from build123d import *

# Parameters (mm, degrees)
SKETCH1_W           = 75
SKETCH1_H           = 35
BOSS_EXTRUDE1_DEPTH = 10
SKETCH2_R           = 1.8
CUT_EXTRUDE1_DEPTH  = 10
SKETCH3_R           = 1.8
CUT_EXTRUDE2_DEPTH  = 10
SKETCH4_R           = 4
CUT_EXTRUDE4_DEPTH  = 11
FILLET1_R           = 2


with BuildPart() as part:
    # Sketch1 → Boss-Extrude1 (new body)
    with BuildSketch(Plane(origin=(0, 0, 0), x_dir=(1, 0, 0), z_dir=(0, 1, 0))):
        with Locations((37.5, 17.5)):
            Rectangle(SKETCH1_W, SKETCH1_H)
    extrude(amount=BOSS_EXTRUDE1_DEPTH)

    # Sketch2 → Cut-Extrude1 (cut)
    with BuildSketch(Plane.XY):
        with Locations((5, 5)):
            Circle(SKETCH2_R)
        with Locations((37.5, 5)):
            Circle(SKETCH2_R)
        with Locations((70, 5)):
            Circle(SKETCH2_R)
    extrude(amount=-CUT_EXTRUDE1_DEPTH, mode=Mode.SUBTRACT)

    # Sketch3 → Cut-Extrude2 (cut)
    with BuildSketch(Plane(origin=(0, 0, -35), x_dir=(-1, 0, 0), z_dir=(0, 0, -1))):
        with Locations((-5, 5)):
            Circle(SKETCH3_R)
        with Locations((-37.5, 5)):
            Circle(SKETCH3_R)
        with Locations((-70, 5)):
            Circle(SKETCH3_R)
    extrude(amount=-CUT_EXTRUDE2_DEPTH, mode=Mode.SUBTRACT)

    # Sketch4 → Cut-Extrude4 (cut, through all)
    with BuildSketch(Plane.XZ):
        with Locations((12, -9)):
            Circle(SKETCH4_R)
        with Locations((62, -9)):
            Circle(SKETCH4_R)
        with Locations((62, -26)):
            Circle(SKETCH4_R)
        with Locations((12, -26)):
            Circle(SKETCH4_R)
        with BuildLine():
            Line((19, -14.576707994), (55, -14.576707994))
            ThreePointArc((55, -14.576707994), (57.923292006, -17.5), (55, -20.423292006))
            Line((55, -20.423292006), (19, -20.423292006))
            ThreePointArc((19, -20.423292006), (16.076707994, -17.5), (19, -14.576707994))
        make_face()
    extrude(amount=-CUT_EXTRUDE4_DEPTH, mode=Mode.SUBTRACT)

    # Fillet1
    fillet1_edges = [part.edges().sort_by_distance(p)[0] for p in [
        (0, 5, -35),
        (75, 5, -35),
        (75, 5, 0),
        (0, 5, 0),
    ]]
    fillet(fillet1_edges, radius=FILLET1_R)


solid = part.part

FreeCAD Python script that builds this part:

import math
import FreeCAD as App
import Part
import Sketcher
Q = App.Units.Quantity


def edges_at(feature, points):
    """Names of the edges that pass closest to the given points."""
    edges = feature.Shape.Edges
    near = lambda p: min(range(len(edges)), key=lambda i: edges[i].distToShape(Part.Vertex(*p))[0])
    return sorted({f"Edge{near(p) + 1}" for p in points})


def add_polygon(sketch, points):
    """Adds a closed chain of lines whose ends are joined by coincident constraints."""
    first, n = sketch.GeometryCount, len(points)
    for a, b in zip(points, points[1:] + points[:1]):
        sketch.addGeometry(Part.LineSegment(App.Vector(*a, 0), App.Vector(*b, 0)), False)
    for i in range(n):
        sketch.addConstraint(Sketcher.Constraint("Coincident", first + i, 2, first + (i + 1) % n, 1))

doc = App.newDocument("Part")
body = doc.addObject("PartDesign::Body", "Body")

sketch1 = body.newObject("Sketcher::SketchObject", "Sketch")
sketch1.AttachmentSupport = (doc.getObject("XZ_Plane"), [""])
sketch1.MapMode = "FlatFace"
add_polygon(sketch1, [(0, -35), (0, 0), (75, 0), (75, -35)])
sketch1.addConstraint([
    Sketcher.Constraint("Vertical", 0),
    Sketcher.Constraint("Horizontal", 1),
    Sketcher.Constraint("Vertical", 2),
    Sketcher.Constraint("Horizontal", 3),
    Sketcher.Constraint("Coincident", 0, 2, -1, 1),
    Sketcher.Constraint("DistanceX", 1, 1, 1, 2, Q("75 mm")),
    Sketcher.Constraint("DistanceY", 0, 1, 0, 2, Q("35 mm")),
])
pad1 = body.newObject("PartDesign::Pad", "Pad")
pad1.Profile = sketch1
pad1.Length = 10
pad1.Reversed = True

sketch2 = body.newObject("Sketcher::SketchObject", "Sketch001")
sketch2.AttachmentSupport = (doc.getObject("XY_Plane"), [""])
sketch2.MapMode = "FlatFace"
sketch2.addGeometry([
    Part.Circle(App.Vector(5, 5, 0), App.Vector(0, 0, 1), 1.8),
    Part.Circle(App.Vector(37.5, 5, 0), App.Vector(0, 0, 1), 1.8),
    Part.Circle(App.Vector(70, 5, 0), App.Vector(0, 0, 1), 1.8),
], False)
sketch2.addConstraint([
    Sketcher.Constraint("Equal", 0, 1),
    Sketcher.Constraint("Equal", 1, 2),
    Sketcher.Constraint("Horizontal", 0, 3, 1, 3),
    Sketcher.Constraint("Horizontal", 1, 3, 2, 3),
    Sketcher.Constraint("Diameter", 0, Q("3.6 mm")),
    Sketcher.Constraint("DistanceX", -1, 1, 0, 3, Q("5 mm")),
    Sketcher.Constraint("DistanceY", -1, 1, 0, 3, Q("5 mm")),
    Sketcher.Constraint("DistanceX", -1, 1, 2, 3, Q("70 mm")),
    Sketcher.Constraint("DistanceX", -1, 1, 1, 3, Q("37.5 mm")),
])
pocket1 = body.newObject("PartDesign::Pocket", "Pocket")
pocket1.Profile = sketch2
pocket1.Length = 10

sketch3 = body.newObject("Sketcher::SketchObject", "Sketch002")
sketch3.AttachmentSupport = (doc.getObject("XY_Plane"), [""])
sketch3.MapMode = "FlatFace"
sketch3.AttachmentOffset = App.Placement(App.Vector(0, 0, -35), App.Rotation())
sketch3.addGeometry([
    Part.Circle(App.Vector(5, 5, 0), App.Vector(0, 0, 1), 1.8),
    Part.Circle(App.Vector(37.5, 5, 0), App.Vector(0, 0, 1), 1.8),
    Part.Circle(App.Vector(70, 5, 0), App.Vector(0, 0, 1), 1.8),
], False)
sketch3.addConstraint([
    Sketcher.Constraint("Equal", 0, 1),
    Sketcher.Constraint("Equal", 1, 2),
    Sketcher.Constraint("Horizontal", 0, 3, 1, 3),
    Sketcher.Constraint("Horizontal", 1, 3, 2, 3),
    Sketcher.Constraint("Diameter", 0, Q("3.6 mm")),
    Sketcher.Constraint("DistanceX", -1, 1, 0, 3, Q("5 mm")),
    Sketcher.Constraint("DistanceY", -1, 1, 0, 3, Q("5 mm")),
    Sketcher.Constraint("DistanceX", -1, 1, 2, 3, Q("70 mm")),
    Sketcher.Constraint("DistanceX", -1, 1, 1, 3, Q("37.5 mm")),
])
pocket2 = body.newObject("PartDesign::Pocket", "Pocket001")
pocket2.Profile = sketch3
pocket2.Length = 10
pocket2.Reversed = True

sketch4 = body.newObject("Sketcher::SketchObject", "Sketch003")
sketch4.AttachmentSupport = (doc.getObject("XZ_Plane"), [""])
sketch4.MapMode = "FlatFace"
sketch4.addGeometry([
    Part.Circle(App.Vector(12, -9, 0), App.Vector(0, 0, 1), 4),
    Part.Circle(App.Vector(62, -9, 0), App.Vector(0, 0, 1), 4),
    Part.Circle(App.Vector(62, -26, 0), App.Vector(0, 0, 1), 4),
    Part.Circle(App.Vector(12, -26, 0), App.Vector(0, 0, 1), 4),
    Part.LineSegment(App.Vector(55, -14.6, 0), App.Vector(19, -14.6, 0)),
    Part.ArcOfCircle(Part.Circle(App.Vector(19, -17.5, 0), App.Vector(0, 0, 1), 2.9), math.radians(90), math.radians(270)),
    Part.LineSegment(App.Vector(19, -20.4, 0), App.Vector(55, -20.4, 0)),
    Part.ArcOfCircle(Part.Circle(App.Vector(55, -17.5, 0), App.Vector(0, 0, 1), 2.9), math.radians(-90), math.radians(90)),
], False)
sketch4.addConstraint([
    Sketcher.Constraint("Tangent", 4, 2, 5, 1),
    Sketcher.Constraint("Tangent", 5, 2, 6, 1),
    Sketcher.Constraint("Tangent", 6, 2, 7, 1),
    Sketcher.Constraint("Tangent", 7, 2, 4, 1),
    Sketcher.Constraint("Horizontal", 4),
    Sketcher.Constraint("Horizontal", 6),
    Sketcher.Constraint("Equal", 0, 1),
    Sketcher.Constraint("Equal", 1, 2),
    Sketcher.Constraint("Equal", 2, 3),
    Sketcher.Constraint("Horizontal", 0, 3, 1, 3),
    Sketcher.Constraint("Horizontal", 2, 3, 3, 3),
    Sketcher.Constraint("Vertical", 1, 3, 2, 3),
    Sketcher.Constraint("Vertical", 0, 3, 3, 3),
    Sketcher.Constraint("Diameter", 0, Q("8 mm")),
    Sketcher.Constraint("DistanceX", 4, 2, 4, 1, Q("36 mm")),
    Sketcher.Constraint("DistanceX", -1, 1, 0, 3, Q("12 mm")),
    Sketcher.Constraint("DistanceY", 0, 3, -1, 1, Q("9 mm")),
    Sketcher.Constraint("DistanceX", -1, 1, 1, 3, Q("62 mm")),
    Sketcher.Constraint("DistanceY", 2, 3, -1, 1, Q("26 mm")),
    Sketcher.Constraint("DistanceX", -1, 1, 5, 3, Q("19 mm")),
    Sketcher.Constraint("DistanceY", 5, 3, -1, 1, Q("17.5 mm")),
    Sketcher.Constraint("Radius", 5, Q("2.923292 mm")),
])
pocket3 = body.newObject("PartDesign::Pocket", "Pocket002")
pocket3.Profile = sketch4
pocket3.Type = "ThroughAll"
doc.recompute()

fillet = body.newObject("PartDesign::Fillet", "Fillet")
fillet.Base = (pocket3, edges_at(pocket3, [
    (0, 5, -35),
    (75, 5, -35),
    (75, 5, 0),
    (0, 5, 0),
]))
fillet.Radius = 2

doc.recompute()
